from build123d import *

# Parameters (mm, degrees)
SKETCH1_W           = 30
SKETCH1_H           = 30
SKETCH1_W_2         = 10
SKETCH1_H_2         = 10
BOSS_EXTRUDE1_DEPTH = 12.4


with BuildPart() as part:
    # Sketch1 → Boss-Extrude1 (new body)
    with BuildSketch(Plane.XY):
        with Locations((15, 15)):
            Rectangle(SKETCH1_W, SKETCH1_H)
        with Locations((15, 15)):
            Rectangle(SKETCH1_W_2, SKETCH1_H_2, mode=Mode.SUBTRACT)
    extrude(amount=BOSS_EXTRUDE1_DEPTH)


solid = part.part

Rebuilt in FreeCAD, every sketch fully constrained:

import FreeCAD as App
import Part
import Sketcher
from FreeCAD import Vector


def add_polygon(sketch, points):
    """Adds a closed chain of lines whose ends are joined by coincident constraints."""
    first, n = sketch.GeometryCount, len(points)
    for a, b in zip(points, points[1:] + points[:1]):
        sketch.addGeometry(Part.LineSegment(App.Vector(*a, 0), App.Vector(*b, 0)), False)
    for i in range(n):
        sketch.addConstraint(Sketcher.Constraint("Coincident", first + i, 2, first + (i + 1) % n, 1))

doc = App.newDocument("Part")
body = doc.addObject("PartDesign::Body", "Body")

# Sketch on XY plane
sketch1 = body.newObject("Sketcher::SketchObject", "Sketch")
sketch1.AttachmentSupport = (doc.getObject("XY_Plane"), [""])
sketch1.MapMode = "FlatFace"
add_polygon(sketch1, [(0, 30), (0, 0), (30, 0), (30, 30)])  # lines 0-3
add_polygon(sketch1, [(20, 10), (10, 10), (10, 20), (20, 20)])  # lines 4-7
sketch1.addConstraint([
    Sketcher.Constraint("Vertical", 0),
    Sketcher.Constraint("Horizontal", 1),
    Sketcher.Constraint("Vertical", 2),
    Sketcher.Constraint("Horizontal", 3),
    Sketcher.Constraint("Horizontal", 4),
    Sketcher.Constraint("Vertical", 5),
    Sketcher.Constraint("Horizontal", 6),
    Sketcher.Constraint("Vertical", 7),
    Sketcher.Constraint("Coincident", 0, 2, -1, 1),
    Sketcher.Constraint("Equal", 3, 0),
    Sketcher.Constraint("Equal", 6, 5),
    Sketcher.Constraint("DistanceX", 1, 1, 1, 2, 30.0),
    Sketcher.Constraint("DistanceX", 4, 2, 4, 1, 10.0),
    Sketcher.Constraint("DistanceX", -1, 1, 4, 2, 10.0),
    Sketcher.Constraint("DistanceY", -1, 1, 4, 2, 10.0),
])
pad1 = body.newObject("PartDesign::Pad", "Pad")
pad1.Profile = sketch1
pad1.Length = 12.4

doc.recompute()
